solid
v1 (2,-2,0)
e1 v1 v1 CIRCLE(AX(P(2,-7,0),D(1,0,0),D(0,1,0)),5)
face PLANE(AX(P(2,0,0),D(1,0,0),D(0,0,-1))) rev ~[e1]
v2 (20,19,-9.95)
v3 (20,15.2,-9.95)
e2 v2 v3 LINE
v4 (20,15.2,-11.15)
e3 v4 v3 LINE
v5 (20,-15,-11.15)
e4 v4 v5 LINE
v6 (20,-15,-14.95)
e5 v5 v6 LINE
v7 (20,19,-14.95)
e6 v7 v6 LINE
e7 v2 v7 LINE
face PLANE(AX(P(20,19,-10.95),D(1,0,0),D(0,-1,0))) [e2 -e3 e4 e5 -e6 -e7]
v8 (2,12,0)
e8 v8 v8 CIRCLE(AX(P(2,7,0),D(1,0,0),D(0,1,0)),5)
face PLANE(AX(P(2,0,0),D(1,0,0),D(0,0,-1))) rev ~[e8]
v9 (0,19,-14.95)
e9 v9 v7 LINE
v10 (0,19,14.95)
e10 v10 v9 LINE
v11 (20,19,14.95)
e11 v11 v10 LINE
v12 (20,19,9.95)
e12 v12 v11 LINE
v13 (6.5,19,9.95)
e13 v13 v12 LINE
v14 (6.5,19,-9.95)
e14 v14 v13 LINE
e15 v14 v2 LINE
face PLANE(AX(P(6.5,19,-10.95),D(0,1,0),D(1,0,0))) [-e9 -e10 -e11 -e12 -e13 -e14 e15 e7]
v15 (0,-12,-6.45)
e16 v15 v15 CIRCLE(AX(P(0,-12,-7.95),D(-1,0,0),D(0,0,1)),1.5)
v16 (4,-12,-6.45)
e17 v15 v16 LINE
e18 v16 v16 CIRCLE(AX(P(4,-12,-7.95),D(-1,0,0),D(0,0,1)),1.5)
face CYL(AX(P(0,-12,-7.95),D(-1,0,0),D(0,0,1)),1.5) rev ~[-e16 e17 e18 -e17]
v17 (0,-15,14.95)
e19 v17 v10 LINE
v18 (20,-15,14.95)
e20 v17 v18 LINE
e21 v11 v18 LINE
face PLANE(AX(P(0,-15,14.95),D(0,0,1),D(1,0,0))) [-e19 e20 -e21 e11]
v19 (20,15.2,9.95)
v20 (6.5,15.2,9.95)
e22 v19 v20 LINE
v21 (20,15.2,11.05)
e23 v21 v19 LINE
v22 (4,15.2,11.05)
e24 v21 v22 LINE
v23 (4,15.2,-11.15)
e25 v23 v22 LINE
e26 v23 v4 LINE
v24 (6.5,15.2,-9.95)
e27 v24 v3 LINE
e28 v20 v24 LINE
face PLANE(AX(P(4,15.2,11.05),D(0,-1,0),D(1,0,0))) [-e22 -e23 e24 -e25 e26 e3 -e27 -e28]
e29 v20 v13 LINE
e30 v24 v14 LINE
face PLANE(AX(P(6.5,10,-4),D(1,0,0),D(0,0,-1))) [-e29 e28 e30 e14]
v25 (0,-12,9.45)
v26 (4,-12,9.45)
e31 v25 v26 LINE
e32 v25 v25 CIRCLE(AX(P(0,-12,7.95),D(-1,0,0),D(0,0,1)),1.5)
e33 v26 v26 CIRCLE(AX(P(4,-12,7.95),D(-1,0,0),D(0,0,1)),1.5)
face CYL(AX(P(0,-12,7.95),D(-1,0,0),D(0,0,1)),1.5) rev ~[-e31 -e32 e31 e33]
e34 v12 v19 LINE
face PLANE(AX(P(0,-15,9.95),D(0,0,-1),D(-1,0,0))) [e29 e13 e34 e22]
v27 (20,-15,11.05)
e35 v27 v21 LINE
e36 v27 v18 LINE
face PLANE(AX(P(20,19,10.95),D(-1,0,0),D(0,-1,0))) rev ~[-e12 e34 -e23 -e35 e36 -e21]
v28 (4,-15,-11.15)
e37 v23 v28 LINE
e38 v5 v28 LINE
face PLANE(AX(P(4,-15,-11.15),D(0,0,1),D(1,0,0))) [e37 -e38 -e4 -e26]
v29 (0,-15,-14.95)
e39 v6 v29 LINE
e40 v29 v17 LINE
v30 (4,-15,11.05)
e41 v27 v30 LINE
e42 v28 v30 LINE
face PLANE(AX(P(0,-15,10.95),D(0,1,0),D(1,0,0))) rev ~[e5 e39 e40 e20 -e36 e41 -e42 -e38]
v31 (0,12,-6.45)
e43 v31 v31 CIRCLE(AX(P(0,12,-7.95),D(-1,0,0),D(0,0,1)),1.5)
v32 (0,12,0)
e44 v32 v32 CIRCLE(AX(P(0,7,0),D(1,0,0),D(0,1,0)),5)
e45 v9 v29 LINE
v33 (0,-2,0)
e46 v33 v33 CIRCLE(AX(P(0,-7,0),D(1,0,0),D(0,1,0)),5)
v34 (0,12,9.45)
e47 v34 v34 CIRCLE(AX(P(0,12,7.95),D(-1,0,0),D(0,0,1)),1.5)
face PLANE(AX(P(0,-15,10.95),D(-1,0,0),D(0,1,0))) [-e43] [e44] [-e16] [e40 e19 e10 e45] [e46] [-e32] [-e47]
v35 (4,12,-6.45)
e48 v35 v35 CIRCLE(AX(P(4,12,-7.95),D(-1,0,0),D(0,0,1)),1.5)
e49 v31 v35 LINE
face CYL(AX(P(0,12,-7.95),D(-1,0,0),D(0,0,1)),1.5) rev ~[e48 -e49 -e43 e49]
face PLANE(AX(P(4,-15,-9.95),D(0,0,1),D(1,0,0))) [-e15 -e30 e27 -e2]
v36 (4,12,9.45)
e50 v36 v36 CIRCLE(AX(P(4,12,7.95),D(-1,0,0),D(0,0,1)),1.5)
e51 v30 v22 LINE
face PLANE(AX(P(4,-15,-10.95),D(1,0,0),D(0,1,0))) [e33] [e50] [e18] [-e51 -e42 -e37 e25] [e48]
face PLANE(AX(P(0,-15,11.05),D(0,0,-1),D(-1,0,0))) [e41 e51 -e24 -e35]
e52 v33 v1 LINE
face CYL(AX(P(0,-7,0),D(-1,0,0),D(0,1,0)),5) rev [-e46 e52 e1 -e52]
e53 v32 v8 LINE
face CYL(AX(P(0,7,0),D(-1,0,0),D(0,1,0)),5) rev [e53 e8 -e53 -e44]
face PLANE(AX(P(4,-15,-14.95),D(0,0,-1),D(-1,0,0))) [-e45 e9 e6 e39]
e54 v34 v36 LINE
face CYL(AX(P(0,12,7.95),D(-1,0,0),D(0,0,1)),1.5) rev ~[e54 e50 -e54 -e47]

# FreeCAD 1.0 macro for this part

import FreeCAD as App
import Part
import Sketcher

V = App.Vector
Q = App.Units.Quantity


def add_polygon(sketch, points):
    """Adds a closed chain of lines whose ends are joined by coincident constraints."""
    first, n = sketch.GeometryCount, len(points)
    for a, b in zip(points, points[1:] + points[:1]):
        sketch.addGeometry(Part.LineSegment(App.Vector(*a, 0), App.Vector(*b, 0)), False)
    for i in range(n):
        sketch.addConstraint(Sketcher.Constraint("Coincident", first + i, 2, first + (i + 1) % n, 1))

doc = App.newDocument("Part")
body = doc.addObject("PartDesign::Body", "Body")

sketch1 = doc.addObject("Sketcher::SketchObject", "Sketch")
body.addObject(sketch1)
sketch1.AttachmentSupport = (doc.YZ_Plane, [""])
sketch1.MapMode = "FlatFace"
add_polygon(sketch1, [(-15, 11), (-15, -11), (15, -11), (15, 11)])
sketch1.addGeometry(Part.Circle(V(-7, 0, 0), V(0, 0, 1), 5), False)
sketch1.addGeometry(Part.Circle(V(7, 0, 0), V(0, 0, 1), 5), False)
sketch1.addConstraint(Sketcher.Constraint("Vertical", 0))
sketch1.addConstraint(Sketcher.Constraint("Horizontal", 1))
sketch1.addConstraint(Sketcher.Constraint("Vertical", 2))
sketch1.addConstraint(Sketcher.Constraint("Horizontal", 3))
sketch1.addConstraint(Sketcher.Constraint("Equal", 4, 5))
sketch1.addConstraint(Sketcher.Constraint("Symmetric", 4, 3, 5, 3, -1, 1))
sketch1.addConstraint(Sketcher.Constraint("Symmetric", 0, 2, 2, 2, -1, 1))
sketch1.addConstraint(Sketcher.Constraint("PointOnObject", 4, 3, -1))
sketch1.addConstraint(Sketcher.Constraint("Diameter", 4, Q("10 mm")))
sketch1.addConstraint(Sketcher.Constraint("DistanceX", 1, 1, 1, 2, Q("30 mm")))
sketch1.addConstraint(Sketcher.Constraint("DistanceY", 0, 2, 0, 1, Q("21.9 mm")))
sketch1.addConstraint(Sketcher.Constraint("DistanceX", 4, 3, 5, 3, Q("14 mm")))
pad1 = doc.addObject("PartDesign::Pad", "Pad")
body.addObject(pad1)
pad1.Profile = sketch1
pad1.Length = 2

sketch2 = doc.addObject("Sketcher::SketchObject", "Sketch001")
body.addObject(sketch2)
sketch2.AttachmentSupport = (doc.YZ_Plane, [""])
sketch2.MapMode = "FlatFace"
sketch2.AttachmentOffset = App.Placement(V(0, 0, 2), App.Rotation())
add_polygon(sketch2, [(-15, -11), (15, -11), (15, 11), (-15, 11)])
sketch2.addConstraint(Sketcher.Constraint("Horizontal", 0))
sketch2.addConstraint(Sketcher.Constraint("Vertical", 1))
sketch2.addConstraint(Sketcher.Constraint("Horizontal", 2))
sketch2.addConstraint(Sketcher.Constraint("Vertical", 3))
sketch2.addConstraint(Sketcher.Constraint("Symmetric", 0, 2, 2, 2, -1, 1))
sketch2.addConstraint(Sketcher.Constraint("DistanceX", 0, 1, 0, 2, Q("30 mm")))
sketch2.addConstraint(Sketcher.Constraint("DistanceY", 1, 1, 1, 2, Q("21.9 mm")))
pad2 = doc.addObject("PartDesign::Pad", "Pad001")
body.addObject(pad2)
pad2.Profile = sketch2
pad2.Length = 2

sketch3 = doc.addObject("Sketcher::SketchObject", "Sketch002")
body.addObject(sketch3)
sketch3.AttachmentSupport = (doc.YZ_Plane, [""])
sketch3.MapMode = "FlatFace"
sketch3.addGeometry(Part.Circle(V(12, -8, 0), V(0, 0, 1), 1.5), False)
sketch3.addGeometry(Part.Circle(V(-12, -8, 0), V(0, 0, 1), 1.5), False)
sketch3.addGeometry(Part.Circle(V(12, 8, 0), V(0, 0, 1), 1.5), False)
sketch3.addGeometry(Part.Circle(V(-12, 8, 0), V(0, 0, 1), 1.5), False)
sketch3.addConstraint(Sketcher.Constraint("Equal", 0, 1))
sketch3.addConstraint(Sketcher.Constraint("Equal", 1, 2))
sketch3.addConstraint(Sketcher.Constraint("Equal", 2, 3))
sketch3.addConstraint(Sketcher.Constraint("Symmetric", 1, 3, 2, 3, -1, 1))
sketch3.addConstraint(Sketcher.Constraint("Symmetric", 0, 3, 3, 3, -1, 1))
sketch3.addConstraint(Sketcher.Constraint("Symmetric", 0, 3, 1, 3, -2))
sketch3.addConstraint(Sketcher.Constraint("Diameter", 0, Q("3 mm")))
sketch3.addConstraint(Sketcher.Constraint("DistanceX", -1, 1, 0, 3, Q("12 mm")))
sketch3.addConstraint(Sketcher.Constraint("DistanceY", 0, 3, 2, 3, Q("15.9 mm")))
pocket1 = doc.addObject("PartDesign::Pocket", "Pocket")
body.addObject(pocket1)
pocket1.Profile = sketch3
pocket1.Length = 4
pocket1.Reversed = True

sketch4 = doc.addObject("Sketcher::SketchObject", "Sketch003")
body.addObject(sketch4)
sketch4.AttachmentSupport = (doc.YZ_Plane, [""])
sketch4.MapMode = "FlatFace"
add_polygon(sketch4, [(15, 10.9), (15, -10.9), (19, -10.9), (19, 10.9)])
sketch4.addConstraint(Sketcher.Constraint("Vertical", 0))
sketch4.addConstraint(Sketcher.Constraint("Horizontal", 1))
sketch4.addConstraint(Sketcher.Constraint("Vertical", 2))
sketch4.addConstraint(Sketcher.Constraint("Horizontal", 3))
sketch4.addConstraint(Sketcher.Constraint("DistanceX", 1, 1, 1, 2, Q("4 mm")))
sketch4.addConstraint(Sketcher.Constraint("DistanceY", 0, 2, 0, 1, Q("21.9 mm")))
sketch4.addConstraint(Sketcher.Constraint("DistanceX", -1, 1, 0, 2, Q("15 mm")))
sketch4.addConstraint(Sketcher.Constraint("DistanceY", 0, 2, -1, 1, Q("10.95 mm")))
pad3 = doc.addObject("PartDesign::Pad", "Pad002")
body.addObject(pad3)
pad3.Profile = sketch4
pad3.Length = 6.5

sketch5 = doc.addObject("Sketcher::SketchObject", "Sketch004")
body.addObject(sketch5)
sketch5.AttachmentSupport = (doc.XY_Plane, [""])
sketch5.MapMode = "FlatFace"
sketch5.AttachmentOffset = App.Placement(V(0, 0, -10.95), App.Rotation())
add_polygon(sketch5, [(0, -15), (0, 19), (20, 19), (20, -15)])
sketch5.addConstraint(Sketcher.Constraint("Vertical", 0))
sketch5.addConstraint(Sketcher.Constraint("Horizontal", 1))
sketch5.addConstraint(Sketcher.Constraint("Vertical", 2))
sketch5.addConstraint(Sketcher.Constraint("Horizontal", 3))
sketch5.addConstraint(Sketcher.Constraint("PointOnObject", 0, 2, -2))
sketch5.addConstraint(Sketcher.Constraint("DistanceX", 1, 1, 1, 2, Q("20 mm")))
sketch5.addConstraint(Sketcher.Constraint("DistanceY", 0, 1, 0, 2, Q("34 mm")))
sketch5.addConstraint(Sketcher.Constraint("DistanceY", -1, 1, 0, 2, Q("19 mm")))
pad4 = doc.addObject("PartDesign::Pad", "Pad003")
body.addObject(pad4)
pad4.Profile = sketch5
pad4.Length = 4
pad4.Reversed = True

sketch6 = doc.addObject("Sketcher::SketchObject", "Sketch005")
body.addObject(sketch6)
sketch6.AttachmentSupport = (doc.XY_Plane, [""])
sketch6.MapMode = "FlatFace"
sketch6.AttachmentOffset = App.Placement(V(0, 0, 10.95), App.Rotation())
add_polygon(sketch6, [(0, 19), (0, -15), (20, -15), (20, 19)])
sketch6.addConstraint(Sketcher.Constraint("Vertical", 0))
sketch6.addConstraint(Sketcher.Constraint("Horizontal", 1))
sketch6.addConstraint(Sketcher.Constraint("Vertical", 2))
sketch6.addConstraint(Sketcher.Constraint("Horizontal", 3))
sketch6.addConstraint(Sketcher.Constraint("PointOnObject", 0, 2, -2))
sketch6.addConstraint(Sketcher.Constraint("DistanceX", 1, 1, 1, 2, Q("20 mm")))
sketch6.addConstraint(Sketcher.Constraint("DistanceY", 0, 2, 0, 1, Q("34 mm")))
sketch6.addConstraint(Sketcher.Constraint("DistanceY", 0, 2, -1, 1, Q("15 mm")))
pad5 = doc.addObject("PartDesign::Pad", "Pad004")
body.addObject(pad5)
pad5.Profile = sketch6
pad5.Length = 4

sketch7 = doc.addObject("Sketcher::SketchObject", "Sketch006")
body.addObject(sketch7)
sketch7.AttachmentSupport = (doc.XY_Plane, [""])
sketch7.MapMode = "FlatFace"
sketch7.AttachmentOffset = App.Placement(V(0, 0, 10.95), App.Rotation())
add_polygon(sketch7, [(20, 15), (20, -15), (4, -15), (4, 15)])
sketch7.addConstraint(Sketcher.Constraint("Vertical", 0))
sketch7.addConstraint(Sketcher.Constraint("Horizontal", 1))
sketch7.addConstraint(Sketcher.Constraint("Vertical", 2))
sketch7.addConstraint(Sketcher.Constraint("Horizontal", 3))
sketch7.addConstraint(Sketcher.Constraint("DistanceX", 1, 2, 1, 1, Q("16 mm")))
sketch7.addConstraint(Sketcher.Constraint("DistanceY", 0, 2, 0, 1, Q("30 mm")))
sketch7.addConstraint(Sketcher.Constraint("DistanceX", -1, 1, 0, 2, Q("20 mm")))
sketch7.addConstraint(Sketcher.Constraint("DistanceY", 0, 2, -1, 1, Q("15 mm")))
pocket2 = doc.addObject("PartDesign::Pocket", "Pocket001")
body.addObject(pocket2)
pocket2.Profile = sketch7
pocket2.Length = 0.2
pocket2.Midplane = True

sketch8 = doc.addObject("Sketcher::SketchObject", "Sketch007")
body.addObject(sketch8)
sketch8.AttachmentSupport = (doc.XY_Plane, [""])
sketch8.MapMode = "FlatFace"
sketch8.AttachmentOffset = App.Placement(V(0, 0, -10.95), App.Rotation())
add_polygon(sketch8, [(20, -15), (20, 15), (4, 15), (4, -15)])
sketch8.addConstraint(Sketcher.Constraint("Vertical", 0))
sketch8.addConstraint(Sketcher.Constraint("Horizontal", 1))
sketch8.addConstraint(Sketcher.Constraint("Vertical", 2))
sketch8.addConstraint(Sketcher.Constraint("Horizontal", 3))
sketch8.addConstraint(Sketcher.Constraint("DistanceX", 1, 2, 1, 1, Q("16 mm")))
sketch8.addConstraint(Sketcher.Constraint("DistanceY", 0, 1, 0, 2, Q("30 mm")))
sketch8.addConstraint(Sketcher.Constraint("DistanceX", -1, 1, 0, 2, Q("20 mm")))
sketch8.addConstraint(Sketcher.Constraint("DistanceY", -1, 1, 0, 2, Q("15 mm")))
pocket3 = doc.addObject("PartDesign::Pocket", "Pocket002")
body.addObject(pocket3)
pocket3.Profile = sketch8
pocket3.Length = 0.2

sketch9 = doc.addObject("Sketcher::SketchObject", "Sketch008")
body.addObject(sketch9)
sketch9.AttachmentSupport = (doc.XY_Plane, [""])
sketch9.MapMode = "FlatFace"
sketch9.AttachmentOffset = App.Placement(V(0, 0, 10.95), App.Rotation())
add_polygon(sketch9, [(20, 19), (20, 15), (6.5, 15), (6.5, 19)])
sketch9.addConstraint(Sketcher.Constraint("Vertical", 0))
sketch9.addConstraint(Sketcher.Constraint("Horizontal", 1))
sketch9.addConstraint(Sketcher.Constraint("Vertical", 2))
sketch9.addConstraint(Sketcher.Constraint("Horizontal", 3))
sketch9.addConstraint(Sketcher.Constraint("DistanceY", 0, 2, 0, 1, Q("4 mm")))
sketch9.addConstraint(Sketcher.Constraint("DistanceX", 1, 2, 1, 1, Q("13.5 mm")))
sketch9.addConstraint(Sketcher.Constraint("DistanceX", -1, 1, 0, 2, Q("20 mm")))
sketch9.addConstraint(Sketcher.Constraint("DistanceY", -1, 1, 0, 2, Q("15 mm")))
pad6 = doc.addObject("PartDesign::Pad", "Pad005")
body.addObject(pad6)
pad6.Profile = sketch9
pad6.Length = 1
pad6.Reversed = True

sketch10 = doc.addObject("Sketcher::SketchObject", "Sketch009")
body.addObject(sketch10)
sketch10.AttachmentSupport = (doc.XY_Plane, [""])
sketch10.MapMode = "FlatFace"
sketch10.AttachmentOffset = App.Placement(V(0, 0, -10.95), App.Rotation())
add_polygon(sketch10, [(6.5, 19), (6.5, 15), (20, 15), (20, 19)])
sketch10.addConstraint(Sketcher.Constraint("Vertical", 0))
sketch10.addConstraint(Sketcher.Constraint("Horizontal", 1))
sketch10.addConstraint(Sketcher.Constraint("Vertical", 2))
sketch10.addConstraint(Sketcher.Constraint("Horizontal", 3))
sketch10.addConstraint(Sketcher.Constraint("DistanceY", 0, 2, 0, 1, Q("4 mm")))
sketch10.addConstraint(Sketcher.Constraint("DistanceX", 1, 1, 1, 2, Q("13.5 mm")))
sketch10.addConstraint(Sketcher.Constraint("DistanceY", -1, 1, 0, 2, Q("15 mm")))
sketch10.addConstraint(Sketcher.Constraint("DistanceX", -1, 1, 1, 2, Q("20 mm")))
pad7 = doc.addObject("PartDesign::Pad", "Pad006")
body.addObject(pad7)
pad7.Profile = sketch10
pad7.Length = 1

sketch11 = doc.addObject("Sketcher::SketchObject", "Sketch010")
body.addObject(sketch11)
sketch11.AttachmentSupport = (doc.XZ_Plane, [""])
sketch11.MapMode = "FlatFace"
sketch11.AttachmentOffset = App.Placement(V(0, 0, -15), App.Rotation())
add_polygon(sketch11, [(4, 11.1), (4, -11.2), (20, -11.2), (20, -9.9), (6.5, -9.9), (6.5, 9.9), (20, 9.9), (20, 11.1)])
sketch11.addConstraint(Sketcher.Constraint("Vertical", 0))
sketch11.addConstraint(Sketcher.Constraint("Horizontal", 1))
sketch11.addConstraint(Sketcher.Constraint("Vertical", 2))
sketch11.addConstraint(Sketcher.Constraint("Horizontal", 3))
sketch11.addConstraint(Sketcher.Constraint("Vertical", 4))
sketch11.addConstraint(Sketcher.Constraint("Horizontal", 5))
sketch11.addConstraint(Sketcher.Constraint("Vertical", 6))
sketch11.addConstraint(Sketcher.Constraint("Horizontal", 7))
sketch11.addConstraint(Sketcher.Constraint("Symmetric", 2, 2, 5, 2, -1))
sketch11.addConstraint(Sketcher.Constraint("DistanceX", 1, 1, 1, 2, Q("16 mm")))
sketch11.addConstraint(Sketcher.Constraint("DistanceX", 3, 2, 3, 1, Q("13.5 mm")))
sketch11.addConstraint(Sketcher.Constraint("DistanceY", 0, 2, 0, 1, Q("22.2 mm")))
sketch11.addConstraint(Sketcher.Constraint("DistanceY", 2, 1, 2, 2, Q("1.2 mm")))
sketch11.addConstraint(Sketcher.Constraint("DistanceY", 4, 1, 4, 2, Q("19.9 mm")))
sketch11.addConstraint(Sketcher.Constraint("DistanceX", -1, 1, 0, 2, Q("4 mm")))
pocket4 = doc.addObject("PartDesign::Pocket", "Pocket003")
body.addObject(pocket4)
pocket4.Profile = sketch11
pocket4.Length = 0.2

doc.recompute()
